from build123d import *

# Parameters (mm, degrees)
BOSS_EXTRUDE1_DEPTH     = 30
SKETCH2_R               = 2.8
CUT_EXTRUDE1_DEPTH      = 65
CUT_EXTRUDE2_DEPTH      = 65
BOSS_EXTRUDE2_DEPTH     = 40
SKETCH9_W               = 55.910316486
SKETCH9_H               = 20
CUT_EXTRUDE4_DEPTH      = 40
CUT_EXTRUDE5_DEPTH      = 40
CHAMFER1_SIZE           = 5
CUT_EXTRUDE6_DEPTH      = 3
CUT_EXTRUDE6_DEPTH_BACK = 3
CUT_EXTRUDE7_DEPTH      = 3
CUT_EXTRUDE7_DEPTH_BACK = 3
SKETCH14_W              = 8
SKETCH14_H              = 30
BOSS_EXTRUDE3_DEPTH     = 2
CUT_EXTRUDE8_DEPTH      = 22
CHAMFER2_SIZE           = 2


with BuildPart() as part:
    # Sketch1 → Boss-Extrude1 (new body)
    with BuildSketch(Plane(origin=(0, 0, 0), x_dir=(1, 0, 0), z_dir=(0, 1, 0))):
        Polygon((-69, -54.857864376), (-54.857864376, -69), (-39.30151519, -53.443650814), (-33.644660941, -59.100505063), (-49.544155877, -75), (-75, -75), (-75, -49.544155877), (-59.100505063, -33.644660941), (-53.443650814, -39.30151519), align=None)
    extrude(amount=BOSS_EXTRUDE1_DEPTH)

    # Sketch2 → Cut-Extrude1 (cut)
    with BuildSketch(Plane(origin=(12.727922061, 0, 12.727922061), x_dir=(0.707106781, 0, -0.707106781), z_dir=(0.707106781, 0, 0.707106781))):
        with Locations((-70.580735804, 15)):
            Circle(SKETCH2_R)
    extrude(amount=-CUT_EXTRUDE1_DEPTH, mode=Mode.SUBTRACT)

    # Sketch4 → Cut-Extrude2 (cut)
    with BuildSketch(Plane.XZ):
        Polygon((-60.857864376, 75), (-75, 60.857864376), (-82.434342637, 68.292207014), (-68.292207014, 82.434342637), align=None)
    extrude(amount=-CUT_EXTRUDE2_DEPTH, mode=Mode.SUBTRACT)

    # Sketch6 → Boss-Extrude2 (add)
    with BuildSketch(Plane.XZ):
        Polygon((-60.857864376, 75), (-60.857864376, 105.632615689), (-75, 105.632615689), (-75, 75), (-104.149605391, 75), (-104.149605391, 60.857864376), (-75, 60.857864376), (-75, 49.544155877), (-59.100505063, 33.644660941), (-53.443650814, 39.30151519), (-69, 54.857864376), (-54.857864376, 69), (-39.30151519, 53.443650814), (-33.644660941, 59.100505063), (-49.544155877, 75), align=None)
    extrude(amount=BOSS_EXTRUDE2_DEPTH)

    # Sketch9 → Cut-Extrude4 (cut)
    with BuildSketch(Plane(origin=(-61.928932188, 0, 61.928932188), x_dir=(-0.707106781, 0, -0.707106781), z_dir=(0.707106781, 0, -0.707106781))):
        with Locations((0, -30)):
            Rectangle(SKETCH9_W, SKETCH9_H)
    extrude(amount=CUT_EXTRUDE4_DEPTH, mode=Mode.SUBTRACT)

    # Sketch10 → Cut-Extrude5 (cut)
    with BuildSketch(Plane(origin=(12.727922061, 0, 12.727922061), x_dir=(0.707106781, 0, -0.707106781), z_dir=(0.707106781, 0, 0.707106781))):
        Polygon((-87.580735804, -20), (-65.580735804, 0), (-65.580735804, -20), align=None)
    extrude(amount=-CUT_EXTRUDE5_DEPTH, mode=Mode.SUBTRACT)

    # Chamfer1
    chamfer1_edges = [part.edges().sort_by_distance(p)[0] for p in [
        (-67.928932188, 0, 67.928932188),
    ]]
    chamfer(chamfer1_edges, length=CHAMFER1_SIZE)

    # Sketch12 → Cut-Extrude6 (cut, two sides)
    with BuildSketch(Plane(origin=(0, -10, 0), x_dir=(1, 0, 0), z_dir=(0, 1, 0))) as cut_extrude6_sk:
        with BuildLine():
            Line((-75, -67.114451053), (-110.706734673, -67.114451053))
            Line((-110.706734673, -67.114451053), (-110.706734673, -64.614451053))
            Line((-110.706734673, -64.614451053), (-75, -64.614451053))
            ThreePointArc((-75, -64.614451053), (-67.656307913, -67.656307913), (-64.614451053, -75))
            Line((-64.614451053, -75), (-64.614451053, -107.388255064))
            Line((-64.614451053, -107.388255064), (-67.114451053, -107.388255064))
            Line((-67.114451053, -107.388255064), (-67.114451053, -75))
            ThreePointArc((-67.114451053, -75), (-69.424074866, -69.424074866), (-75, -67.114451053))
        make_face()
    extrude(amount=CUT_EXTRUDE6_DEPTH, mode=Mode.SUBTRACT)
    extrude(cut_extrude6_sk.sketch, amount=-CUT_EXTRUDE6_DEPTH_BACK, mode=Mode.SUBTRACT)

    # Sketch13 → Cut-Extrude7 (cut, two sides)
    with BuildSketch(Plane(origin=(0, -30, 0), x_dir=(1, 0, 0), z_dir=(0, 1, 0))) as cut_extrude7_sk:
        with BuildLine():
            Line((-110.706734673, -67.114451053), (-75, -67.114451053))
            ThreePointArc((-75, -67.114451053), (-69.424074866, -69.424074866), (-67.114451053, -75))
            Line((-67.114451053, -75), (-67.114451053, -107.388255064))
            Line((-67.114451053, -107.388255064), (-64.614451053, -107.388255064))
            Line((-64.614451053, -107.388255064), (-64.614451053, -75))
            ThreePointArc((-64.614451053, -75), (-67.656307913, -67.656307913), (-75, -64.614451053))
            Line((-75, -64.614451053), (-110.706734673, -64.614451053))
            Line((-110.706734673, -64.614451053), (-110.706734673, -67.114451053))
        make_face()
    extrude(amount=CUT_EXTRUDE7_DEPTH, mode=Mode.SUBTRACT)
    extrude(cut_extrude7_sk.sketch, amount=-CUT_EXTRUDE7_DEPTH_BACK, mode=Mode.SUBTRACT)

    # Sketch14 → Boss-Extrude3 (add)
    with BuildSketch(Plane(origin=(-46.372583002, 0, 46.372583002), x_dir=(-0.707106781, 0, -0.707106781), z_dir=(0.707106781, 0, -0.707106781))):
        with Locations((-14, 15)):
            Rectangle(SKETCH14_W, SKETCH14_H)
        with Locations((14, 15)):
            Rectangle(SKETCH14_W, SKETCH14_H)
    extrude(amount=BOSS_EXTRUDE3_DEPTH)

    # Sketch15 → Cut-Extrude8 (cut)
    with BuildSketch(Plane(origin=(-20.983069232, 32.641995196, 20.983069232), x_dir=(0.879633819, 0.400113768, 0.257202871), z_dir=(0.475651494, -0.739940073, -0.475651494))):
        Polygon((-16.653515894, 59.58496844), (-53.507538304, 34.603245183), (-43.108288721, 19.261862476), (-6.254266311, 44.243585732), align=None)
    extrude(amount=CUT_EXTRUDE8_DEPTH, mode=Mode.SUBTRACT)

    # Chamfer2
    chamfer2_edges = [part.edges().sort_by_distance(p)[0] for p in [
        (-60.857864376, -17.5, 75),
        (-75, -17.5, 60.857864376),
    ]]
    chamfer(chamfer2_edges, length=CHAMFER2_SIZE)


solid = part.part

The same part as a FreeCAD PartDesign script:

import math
import FreeCAD as App
import Part
import Sketcher

V = App.Vector
Q = App.Units.Quantity


def edges_at(feature, points):
    """Names of the edges that pass closest to the given points."""
    edges = feature.Shape.Edges
    near = lambda p: min(range(len(edges)), key=lambda i: edges[i].distToShape(Part.Vertex(*p))[0])
    return sorted({f"Edge{near(p) + 1}" for p in points})

doc = App.newDocument("Part")
body = doc.addObject("PartDesign::Body", "Body")

# Sketch on XZ plane
sketch1 = body.newObject("Sketcher::SketchObject", "Sketch")
sketch1.AttachmentSupport = (doc.getObject("XZ_Plane"), [""])
sketch1.MapMode = "FlatFace"
sketch1.addGeometry([
    Part.LineSegment(V(-55, 69, 0), V(-69, 55, 0)),  # 0
    Part.LineSegment(V(-69, 55, 0), V(-53, 39, 0)),  # 1
    Part.LineSegment(V(-53, 39, 0), V(-59, 34, 0)),  # 2
    Part.LineSegment(V(-59, 34, 0), V(-75, 50, 0)),  # 3
    Part.LineSegment(V(-75, 50, 0), V(-75, 75, 0)),  # 4
    Part.LineSegment(V(-75, 75, 0), V(-50, 75, 0)),  # 5
    Part.LineSegment(V(-50, 75, 0), V(-34, 59, 0)),  # 6
    Part.LineSegment(V(-34, 59, 0), V(-39, 53, 0)),  # 7
    Part.LineSegment(V(-39, 53, 0), V(-55, 69, 0)),  # 8
], False)
sketch1.addConstraint([
    Sketcher.Constraint("Coincident", 0, 2, 1, 1),
    Sketcher.Constraint("Coincident", 1, 2, 2, 1),
    Sketcher.Constraint("Coincident", 2, 2, 3, 1),
    Sketcher.Constraint("Coincident", 3, 2, 4, 1),
    Sketcher.Constraint("Coincident", 4, 2, 5, 1),
    Sketcher.Constraint("Coincident", 5, 2, 6, 1),
    Sketcher.Constraint("Coincident", 6, 2, 7, 1),
    Sketcher.Constraint("Coincident", 7, 2, 8, 1),
    Sketcher.Constraint("Coincident", 8, 2, 0, 1),
    Sketcher.Constraint("Vertical", 4),
    Sketcher.Constraint("Horizontal", 5),
    Sketcher.Constraint("Perpendicular", 0, 1),
    Sketcher.Constraint("Perpendicular", 1, 2),
    Sketcher.Constraint("Perpendicular", 2, 3),
    Sketcher.Constraint("Parallel", 3, 6),
    Sketcher.Constraint("Perpendicular", 6, 7),
    Sketcher.Constraint("Perpendicular", 7, 8),
    Sketcher.Constraint("Equal", 5, 4),
    Sketcher.Constraint("Equal", 3, 6),
    Sketcher.Constraint("Equal", 2, 7),
    Sketcher.Constraint("Equal", 1, 8),
    Sketcher.Constraint("Distance", 0, 20.0),
    Sketcher.Constraint("Distance", 1, 22.0),
    Sketcher.Constraint("Distance", 2, 8.0),
    Sketcher.Constraint("DistanceX", 0, 2, -1, 1, 69.0),
    Sketcher.Constraint("DistanceX", 3, 2, -1, 1, 75.0),
    Sketcher.Constraint("DistanceY", -1, 1, 4, 2, 75.0),
])
pad1 = body.newObject("PartDesign::Pad", "Pad")
pad1.Profile = sketch1
pad1.Length = 30
pad1.Reversed = True

# Sketch on an angled plane
sketch2 = body.newObject("Sketcher::SketchObject", "Sketch001")
sketch2.Placement = App.Placement(V(12.727922, 0, 12.727922), App.Rotation(V(0.707106781, 0, -0.707106781), V(0, 0.999999999, 0), V(0.707106781, 0, 0.707106781), "ZXY"))
sketch2.addGeometry(Part.Circle(V(-70.6, 15, 0), V(0, 0, 1), 2.8), False)
sketch2.addConstraint([
    Sketcher.Constraint("Diameter", 0, 5.6),
    Sketcher.Constraint("DistanceY", -1, 1, 0, 3, 15.0),
    Sketcher.Constraint("DistanceX", 0, 3, -1, 1, 70.580736),
])
pocket1 = body.newObject("PartDesign::Pocket", "Pocket")
pocket1.Profile = sketch2
pocket1.Length = 65

# Sketch on XZ plane
sketch3 = body.newObject("Sketcher::SketchObject", "Sketch002")
sketch3.AttachmentSupport = (doc.getObject("XZ_Plane"), [""])
sketch3.MapMode = "FlatFace"
sketch3.addGeometry([
    Part.LineSegment(V(-75, 61, 0), V(-61, 75, 0)),
    Part.LineSegment(V(-61, 75, 0), V(-68, 82, 0)),
    Part.LineSegment(V(-68, 82, 0), V(-82, 68, 0)),
    Part.LineSegment(V(-82, 68, 0), V(-75, 61, 0)),
], False)
sketch3.addConstraint([
    Sketcher.Constraint("Coincident", 0, 2, 1, 1),
    Sketcher.Constraint("Coincident", 1, 2, 2, 1),
    Sketcher.Constraint("Coincident", 2, 2, 3, 1),
    Sketcher.Constraint("Coincident", 3, 2, 0, 1),
    Sketcher.Constraint("Perpendicular", 0, 1),
    Sketcher.Constraint("Perpendicular", 1, 2),
    Sketcher.Constraint("Perpendicular", 2, 3),
    Sketcher.Constraint("Angle", 0, Q("45 deg")),
    Sketcher.Constraint("Distance", 0, 20.0),
    Sketcher.Constraint("DistanceY", -1, 1, 0, 2, 75.0),
    Sketcher.Constraint("DistanceX", 3, 2, -1, 1, 75.0),
    Sketcher.Constraint("Distance", 1, 10.513748),
])
pocket2 = body.newObject("PartDesign::Pocket", "Pocket001")
pocket2.Profile = sketch3
pocket2.Length = 65

# Sketch on XZ plane
sketch4 = body.newObject("Sketcher::SketchObject", "Sketch003")
sketch4.AttachmentSupport = (doc.getObject("XZ_Plane"), [""])
sketch4.MapMode = "FlatFace"
sketch4.addGeometry([
    Part.LineSegment(V(-61, 75, 0), V(-61, 106, 0)),  # 0
    Part.LineSegment(V(-61, 106, 0), V(-75, 106, 0)),  # 1
    Part.LineSegment(V(-75, 106, 0), V(-75, 75, 0)),  # 2
    Part.LineSegment(V(-75, 75, 0), V(-104, 75, 0)),  # 3
    Part.LineSegment(V(-104, 75, 0), V(-104, 61, 0)),  # 4
    Part.LineSegment(V(-104, 61, 0), V(-75, 61, 0)),  # 5
    Part.LineSegment(V(-75, 61, 0), V(-75, 50, 0)),  # 6
    Part.LineSegment(V(-75, 50, 0), V(-59, 34, 0)),  # 7
    Part.LineSegment(V(-59, 34, 0), V(-53, 39, 0)),  # 8
    Part.LineSegment(V(-53, 39, 0), V(-69, 55, 0)),  # 9
    Part.LineSegment(V(-69, 55, 0), V(-55, 69, 0)),  # 10
    Part.LineSegment(V(-55, 69, 0), V(-39, 53, 0)),  # 11
    Part.LineSegment(V(-39, 53, 0), V(-34, 59, 0)),  # 12
    Part.LineSegment(V(-34, 59, 0), V(-50, 75, 0)),  # 13
    Part.LineSegment(V(-50, 75, 0), V(-61, 75, 0)),  # 14
], False)
sketch4.addConstraint([
    Sketcher.Constraint("Coincident", 0, 2, 1, 1),
    Sketcher.Constraint("Coincident", 1, 2, 2, 1),
    Sketcher.Constraint("Coincident", 2, 2, 3, 1),
    Sketcher.Constraint("Coincident", 3, 2, 4, 1),
    Sketcher.Constraint("Coincident", 4, 2, 5, 1),
    Sketcher.Constraint("Coincident", 5, 2, 6, 1),
    Sketcher.Constraint("Coincident", 6, 2, 7, 1),
    Sketcher.Constraint("Coincident", 7, 2, 8, 1),
    Sketcher.Constraint("Coincident", 8, 2, 9, 1),
    Sketcher.Constraint("Coincident", 9, 2, 10, 1),
    Sketcher.Constraint("Coincident", 10, 2, 11, 1),
    Sketcher.Constraint("Coincident", 11, 2, 12, 1),
    Sketcher.Constraint("Coincident", 12, 2, 13, 1),
    Sketcher.Constraint("Coincident", 13, 2, 14, 1),
    Sketcher.Constraint("Coincident", 14, 2, 0, 1),
    Sketcher.Constraint("Vertical", 0),
    Sketcher.Constraint("Horizontal", 1),
    Sketcher.Constraint("Vertical", 2),
    Sketcher.Constraint("Horizontal", 3),
    Sketcher.Constraint("Vertical", 4),
    Sketcher.Constraint("Horizontal", 5),
    Sketcher.Constraint("Vertical", 6),
    Sketcher.Constraint("Horizontal", 14),
    Sketcher.Constraint("Perpendicular", 7, 8),
    Sketcher.Constraint("Perpendicular", 8, 9),
    Sketcher.Constraint("Perpendicular", 9, 10),
    Sketcher.Constraint("Perpendicular", 10, 11),
    Sketcher.Constraint("Perpendicular", 11, 12),
    Sketcher.Constraint("Perpendicular", 12, 13),
    Sketcher.Constraint("Horizontal", 3, 2, 13, 2),
    Sketcher.Constraint("Vertical", 2, 2, 5, 2),
    Sketcher.Constraint("Equal", 1, 4),
    Sketcher.Constraint("Equal", 14, 6),
    Sketcher.Constraint("Equal", 9, 11),
    Sketcher.Constraint("Equal", 8, 12),
    Sketcher.Constraint("Equal", 7, 13),
    Sketcher.Constraint("Distance", 8, 8.0),
    Sketcher.Constraint("Distance", 9, 22.0),
    Sketcher.Constraint("Distance", 10, 20.0),
    Sketcher.Constraint("DistanceX", 1, 2, -1, 1, 75.0),
    Sketcher.Constraint("DistanceY", -1, 1, 2, 2, 75.0),
    Sketcher.Constraint("DistanceX", 9, 2, -1, 1, 69.0),
    Sketcher.Constraint("DistanceY", 9, 2, 5, 2, 6.0),
    Sketcher.Constraint("DistanceX", 4, 2, 7, 2, 45.0491),
    Sketcher.Constraint("DistanceY", 0, 1, 0, 2, 30.632616),
])
pad2 = body.newObject("PartDesign::Pad", "Pad001")
pad2.Profile = sketch4
pad2.Length = 40

# Sketch on an angled plane
sketch5 = body.newObject("Sketcher::SketchObject", "Sketch004")
sketch5.Placement = App.Placement(V(-61.928932, 0, 61.928932), App.Rotation(V(-0.707106781, 0, -0.707106781), V(0, 0.999999999, 0), V(0.707106781, 0, -0.707106781), "ZXY"))
sketch5.addGeometry([
    Part.LineSegment(V(-28, -20, 0), V(-28, -40, 0)),
    Part.LineSegment(V(-28, -40, 0), V(28, -40, 0)),
    Part.LineSegment(V(28, -40, 0), V(28, -20, 0)),
    Part.LineSegment(V(28, -20, 0), V(-28, -20, 0)),
], False)
sketch5.addConstraint([
    Sketcher.Constraint("Coincident", 0, 2, 1, 1),
    Sketcher.Constraint("Coincident", 1, 2, 2, 1),
    Sketcher.Constraint("Coincident", 2, 2, 3, 1),
    Sketcher.Constraint("Coincident", 3, 2, 0, 1),
    Sketcher.Constraint("Vertical", 0),
    Sketcher.Constraint("Horizontal", 1),
    Sketcher.Constraint("Vertical", 2),
    Sketcher.Constraint("Horizontal", 3),
    Sketcher.Constraint("DistanceY", 0, 2, 0, 1, 20.0),
    Sketcher.Constraint("DistanceY", 0, 2, -1, 1, 40.0),
    Sketcher.Constraint("DistanceX", 1, 1, 1, 2, 55.910316),
    Sketcher.Constraint("DistanceX", 0, 2, -1, 1, 27.955158),
])
pocket3 = body.newObject("PartDesign::Pocket", "Pocket002")
pocket3.Profile = sketch5
pocket3.Length = 40
pocket3.Reversed = True

# Sketch on an angled plane
sketch6 = body.newObject("Sketcher::SketchObject", "Sketch005")
sketch6.Placement = App.Placement(V(12.727922, 0, 12.727922), App.Rotation(V(0.707106781, 0, -0.707106781), V(0, 0.999999999, 0), V(0.707106781, 0, 0.707106781), "ZXY"))
sketch6.addGeometry([
    Part.LineSegment(V(-66, 0, 0), V(-88, -20, 0)),
    Part.LineSegment(V(-88, -20, 0), V(-66, -20, 0)),
    Part.LineSegment(V(-66, -20, 0), V(-66, 0, 0)),
], False)
sketch6.addConstraint([
    Sketcher.Constraint("Coincident", 0, 2, 1, 1),
    Sketcher.Constraint("Coincident", 1, 2, 2, 1),
    Sketcher.Constraint("Coincident", 2, 2, 0, 1),
    Sketcher.Constraint("Horizontal", 1),
    Sketcher.Constraint("Vertical", 2),
    Sketcher.Constraint("PointOnObject", 2, 2, -1),
    Sketcher.Constraint("DistanceX", 1, 1, 1, 2, 22.0),
    Sketcher.Constraint("DistanceY", 2, 1, 2, 2, 20.0),
    Sketcher.Constraint("DistanceX", 0, 2, -1, 1, 87.580736),
])
pocket4 = body.newObject("PartDesign::Pocket", "Pocket003")
pocket4.Profile = sketch6
pocket4.Length = 40
doc.recompute()

chamfer = body.newObject("PartDesign::Chamfer", "Chamfer")
chamfer.Base = (pocket4, edges_at(pocket4, [(-67.929, 0, 67.929)]))
chamfer.Size = 5

# Sketch on XZ plane
sketch7 = body.newObject("Sketcher::SketchObject", "Sketch006")
sketch7.AttachmentSupport = (doc.getObject("XZ_Plane"), [""])
sketch7.MapMode = "FlatFace"
sketch7.AttachmentOffset = App.Placement(V(0, 0, 10), App.Rotation())
sketch7.addGeometry([
    Part.LineSegment(V(-110.7, 67.1, 0), V(-75, 67.1, 0)),  # 0
    Part.ArcOfCircle(Part.Circle(V(-75, 75, 0), V(0, 0, 1), 7.9), math.radians(-90), math.radians(0)),  # 1
    Part.LineSegment(V(-67.1, 75, 0), V(-67.1, 107.4, 0)),  # 2
    Part.LineSegment(V(-67.1, 107.4, 0), V(-64.6, 107.4, 0)),  # 3
    Part.LineSegment(V(-64.6, 107.4, 0), V(-64.6, 75, 0)),  # 4
    Part.ArcOfCircle(Part.Circle(V(-75, 75, 0), V(0, 0, 1), 10.4), math.radians(-90), math.radians(0)),  # 5
    Part.LineSegment(V(-75, 64.6, 0), V(-110.7, 64.6, 0)),  # 6
    Part.LineSegment(V(-110.7, 64.6, 0), V(-110.7, 67.1, 0)),  # 7
], False)
sketch7.addConstraint([
    Sketcher.Constraint("Tangent", 0, 2, 1, 1),
    Sketcher.Constraint("Tangent", 1, 2, 2, 1),
    Sketcher.Constraint("Coincident", 2, 2, 3, 1),
    Sketcher.Constraint("Coincident", 3, 2, 4, 1),
    Sketcher.Constraint("Tangent", 4, 2, 5, 2),
    Sketcher.Constraint("Tangent", 5, 1, 6, 1),
    Sketcher.Constraint("Coincident", 6, 2, 7, 1),
    Sketcher.Constraint("Coincident", 7, 2, 0, 1),
    Sketcher.Constraint("Horizontal", 0),
    Sketcher.Constraint("Vertical", 2),
    Sketcher.Constraint("Horizontal", 3),
    Sketcher.Constraint("Vertical", 4),
    Sketcher.Constraint("Horizontal", 6),
    Sketcher.Constraint("Vertical", 7),
    Sketcher.Constraint("Coincident", 5, 3, 1, 3),
    Sketcher.Constraint("DistanceX", 3, 1, 3, 2, 2.5),
    Sketcher.Constraint("DistanceX", 1, 3, -1, 1, 75.0),
    Sketcher.Constraint("DistanceY", -1, 1, 1, 3, 75.0),
    Sketcher.Constraint("Radius", 1, 7.885549),
    Sketcher.Constraint("DistanceX", 0, 1, 0, 2, 35.706735),
    Sketcher.Constraint("DistanceY", 2, 1, 2, 2, 32.388255),
])
pocket5 = body.newObject("PartDesign::Pocket", "Pocket004")
pocket5.Profile = sketch7
pocket5.Type = "TwoLengths"
pocket5.Length = 3
pocket5.Length2 = 3

# Sketch on XZ plane
sketch8 = body.newObject("Sketcher::SketchObject", "Sketch007")
sketch8.AttachmentSupport = (doc.getObject("XZ_Plane"), [""])
sketch8.MapMode = "FlatFace"
sketch8.AttachmentOffset = App.Placement(V(0, 0, 30), App.Rotation())
sketch8.addGeometry([
    Part.LineSegment(V(-110.7, 67.1, 0), V(-75, 67.1, 0)),  # 0
    Part.ArcOfCircle(Part.Circle(V(-75, 75, 0), V(0, 0, 1), 7.9), math.radians(-90), math.radians(0)),  # 1
    Part.LineSegment(V(-67.1, 75, 0), V(-67.1, 107.4, 0)),  # 2
    Part.LineSegment(V(-67.1, 107.4, 0), V(-64.6, 107.4, 0)),  # 3
    Part.LineSegment(V(-64.6, 107.4, 0), V(-64.6, 75, 0)),  # 4
    Part.ArcOfCircle(Part.Circle(V(-75, 75, 0), V(0, 0, 1), 10.4), math.radians(-90), math.radians(0)),  # 5
    Part.LineSegment(V(-75, 64.6, 0), V(-110.7, 64.6, 0)),  # 6
    Part.LineSegment(V(-110.7, 64.6, 0), V(-110.7, 67.1, 0)),  # 7
], False)
sketch8.addConstraint([
    Sketcher.Constraint("Tangent", 0, 2, 1, 1),
    Sketcher.Constraint("Tangent", 1, 2, 2, 1),
    Sketcher.Constraint("Coincident", 2, 2, 3, 1),
    Sketcher.Constraint("Coincident", 3, 2, 4, 1),
    Sketcher.Constraint("Tangent", 4, 2, 5, 2),
    Sketcher.Constraint("Tangent", 5, 1, 6, 1),
    Sketcher.Constraint("Coincident", 6, 2, 7, 1),
    Sketcher.Constraint("Coincident", 7, 2, 0, 1),
    Sketcher.Constraint("Horizontal", 0),
    Sketcher.Constraint("Vertical", 2),
    Sketcher.Constraint("Horizontal", 3),
    Sketcher.Constraint("Vertical", 4),
    Sketcher.Constraint("Horizontal", 6),
    Sketcher.Constraint("Vertical", 7),
    Sketcher.Constraint("Coincident", 5, 3, 1, 3),
    Sketcher.Constraint("DistanceX", 3, 1, 3, 2, 2.5),
    Sketcher.Constraint("DistanceX", 1, 3, -1, 1, 75.0),
    Sketcher.Constraint("DistanceY", -1, 1, 1, 3, 75.0),
    Sketcher.Constraint("Radius", 1, 7.885549),
    Sketcher.Constraint("DistanceX", 0, 1, 0, 2, 35.706735),
    Sketcher.Constraint("DistanceY", 2, 1, 2, 2, 32.388255),
])
pocket6 = body.newObject("PartDesign::Pocket", "Pocket005")
pocket6.Profile = sketch8
pocket6.Type = "TwoLengths"
pocket6.Length = 3
pocket6.Length2 = 3

# Sketch on an angled plane
sketch9 = body.newObject("Sketcher::SketchObject", "Sketch008")
sketch9.Placement = App.Placement(V(-46.372583, 0, 46.372583), App.Rotation(V(-0.707106781, 0, -0.707106781), V(0, 0.999999999, 0), V(0.707106781, 0, -0.707106781), "ZXY"))
sketch9.addGeometry([
    Part.LineSegment(V(-18, 30, 0), V(-18, 0, 0)),  # 0
    Part.LineSegment(V(-18, 0, 0), V(-10, 0, 0)),  # 1
    Part.LineSegment(V(-10, 0, 0), V(-10, 30, 0)),  # 2
    Part.LineSegment(V(-10, 30, 0), V(-18, 30, 0)),  # 3
    Part.LineSegment(V(10, 30, 0), V(10, 0, 0)),  # 4
    Part.LineSegment(V(10, 0, 0), V(18, 0, 0)),  # 5
    Part.LineSegment(V(18, 0, 0), V(18, 30, 0)),  # 6
    Part.LineSegment(V(18, 30, 0), V(10, 30, 0)),  # 7
], False)
sketch9.addConstraint([
    Sketcher.Constraint("Coincident", 0, 2, 1, 1),
    Sketcher.Constraint("Coincident", 1, 2, 2, 1),
    Sketcher.Constraint("Coincident", 2, 2, 3, 1),
    Sketcher.Constraint("Coincident", 3, 2, 0, 1),
    Sketcher.Constraint("Coincident", 4, 2, 5, 1),
    Sketcher.Constraint("Coincident", 5, 2, 6, 1),
    Sketcher.Constraint("Coincident", 6, 2, 7, 1),
    Sketcher.Constraint("Coincident", 7, 2, 4, 1),
    Sketcher.Constraint("Vertical", 0),
    Sketcher.Constraint("Horizontal", 1),
    Sketcher.Constraint("Vertical", 2),
    Sketcher.Constraint("Horizontal", 3),
    Sketcher.Constraint("Vertical", 4),
    Sketcher.Constraint("Horizontal", 5),
    Sketcher.Constraint("Vertical", 6),
    Sketcher.Constraint("Horizontal", 7),
    Sketcher.Constraint("Symmetric", 1, 2, 4, 2, -1, 1),
    Sketcher.Constraint("Symmetric", 0, 2, 5, 2, -2),
    Sketcher.Constraint("Horizontal", 3, 2, 6, 2),
    Sketcher.Constraint("DistanceX", 1, 1, 1, 2, 8.0),
    Sketcher.Constraint("DistanceY", 0, 2, 0, 1, 30.0),
    Sketcher.Constraint("DistanceX", 0, 2, -1, 1, 18.0),
])
pad3 = body.newObject("PartDesign::Pad", "Pad002")
pad3.Profile = sketch9
pad3.Length = 2

# Sketch on an angled plane
sketch10 = body.newObject("Sketcher::SketchObject", "Sketch009")
sketch10.Placement = App.Placement(V(-20.983069, 32.641995, 20.983069), App.Rotation(V(0.879633819, 0.400113768, 0.257202871), V(0, -0.54073807, 0.841191024), V(0.475651494, -0.739940073, -0.475651494), "ZXY"))
sketch10.addGeometry([
    Part.LineSegment(V(-17, 60, 0), V(-54, 35, 0)),
    Part.LineSegment(V(-54, 35, 0), V(-43, 19, 0)),
    Part.LineSegment(V(-43, 19, 0), V(-6, 44, 0)),
    Part.LineSegment(V(-6, 44, 0), V(-17, 60, 0)),
], False)
sketch10.addConstraint([
    Sketcher.Constraint("Coincident", 0, 2, 1, 1),
    Sketcher.Constraint("Coincident", 1, 2, 2, 1),
    Sketcher.Constraint("Coincident", 2, 2, 3, 1),
    Sketcher.Constraint("Coincident", 3, 2, 0, 1),
    Sketcher.Constraint("Perpendicular", 0, 1),
    Sketcher.Constraint("Perpendicular", 1, 2),
    Sketcher.Constraint("Perpendicular", 2, 3),
    Sketcher.Constraint("Distance", 0, 44.523089),
    Sketcher.Constraint("Distance", 1, 18.533818),
    Sketcher.Constraint("DistanceX", 0, 2, -1, 1, 53.507538),
    Sketcher.Constraint("DistanceX", 1, 2, -1, 1, 43.108289),
    Sketcher.Constraint("DistanceY", -1, 1, 3, 2, 59.584968),
])
pocket7 = body.newObject("PartDesign::Pocket", "Pocket006")
pocket7.Profile = sketch10
pocket7.Length = 22
pocket7.Reversed = True
doc.recompute()

chamfer2 = body.newObject("PartDesign::Chamfer", "Chamfer001")
chamfer2.Base = (pocket7, edges_at(pocket7, [(-60.858, -17.5, 75), (-75, -17.5, 60.858)]))
chamfer2.Size = 2

doc.recompute()
